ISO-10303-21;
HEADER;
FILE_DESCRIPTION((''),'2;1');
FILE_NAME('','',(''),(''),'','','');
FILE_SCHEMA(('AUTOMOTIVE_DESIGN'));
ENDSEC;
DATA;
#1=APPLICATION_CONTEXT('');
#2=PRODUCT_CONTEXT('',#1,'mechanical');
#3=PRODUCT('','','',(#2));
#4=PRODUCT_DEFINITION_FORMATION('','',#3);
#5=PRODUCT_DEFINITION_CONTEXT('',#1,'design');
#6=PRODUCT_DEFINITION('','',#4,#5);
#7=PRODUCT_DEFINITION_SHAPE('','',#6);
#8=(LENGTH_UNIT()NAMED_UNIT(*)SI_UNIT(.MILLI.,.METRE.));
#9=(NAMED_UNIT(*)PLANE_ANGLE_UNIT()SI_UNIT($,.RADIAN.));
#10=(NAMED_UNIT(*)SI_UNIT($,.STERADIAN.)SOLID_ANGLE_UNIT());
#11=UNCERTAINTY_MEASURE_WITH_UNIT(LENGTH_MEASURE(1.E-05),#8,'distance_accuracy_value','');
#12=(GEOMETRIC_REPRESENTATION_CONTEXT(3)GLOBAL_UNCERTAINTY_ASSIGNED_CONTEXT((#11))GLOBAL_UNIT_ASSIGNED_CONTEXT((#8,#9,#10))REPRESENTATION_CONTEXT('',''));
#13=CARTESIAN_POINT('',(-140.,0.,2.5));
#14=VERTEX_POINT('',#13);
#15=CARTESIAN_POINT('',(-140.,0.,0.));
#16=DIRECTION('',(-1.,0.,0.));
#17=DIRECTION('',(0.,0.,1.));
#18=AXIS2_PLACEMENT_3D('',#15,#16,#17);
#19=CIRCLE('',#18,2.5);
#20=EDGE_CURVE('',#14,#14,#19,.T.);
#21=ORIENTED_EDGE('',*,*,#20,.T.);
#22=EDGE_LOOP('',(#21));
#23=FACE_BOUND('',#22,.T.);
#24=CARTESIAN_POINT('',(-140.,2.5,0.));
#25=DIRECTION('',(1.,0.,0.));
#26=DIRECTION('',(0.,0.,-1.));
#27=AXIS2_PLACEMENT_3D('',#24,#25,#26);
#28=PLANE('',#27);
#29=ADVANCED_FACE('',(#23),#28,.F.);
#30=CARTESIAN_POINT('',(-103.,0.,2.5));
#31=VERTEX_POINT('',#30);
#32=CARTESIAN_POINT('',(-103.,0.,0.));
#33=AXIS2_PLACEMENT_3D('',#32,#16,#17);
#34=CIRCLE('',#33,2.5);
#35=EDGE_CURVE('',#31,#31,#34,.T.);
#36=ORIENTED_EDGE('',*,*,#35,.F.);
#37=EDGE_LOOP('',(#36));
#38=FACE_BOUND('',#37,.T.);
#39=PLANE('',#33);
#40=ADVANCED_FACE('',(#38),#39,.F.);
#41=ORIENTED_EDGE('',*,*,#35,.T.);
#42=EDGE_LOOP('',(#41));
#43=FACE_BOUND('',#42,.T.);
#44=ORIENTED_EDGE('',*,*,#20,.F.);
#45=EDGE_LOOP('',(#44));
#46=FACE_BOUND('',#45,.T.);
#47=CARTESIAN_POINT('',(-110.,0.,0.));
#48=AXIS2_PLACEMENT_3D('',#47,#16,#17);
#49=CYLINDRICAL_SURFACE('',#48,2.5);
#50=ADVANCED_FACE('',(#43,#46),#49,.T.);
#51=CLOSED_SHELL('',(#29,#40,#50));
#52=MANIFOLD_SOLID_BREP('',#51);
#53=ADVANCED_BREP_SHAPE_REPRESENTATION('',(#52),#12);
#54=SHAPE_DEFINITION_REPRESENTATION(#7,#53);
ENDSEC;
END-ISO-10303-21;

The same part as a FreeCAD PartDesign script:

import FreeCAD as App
import Part
import Sketcher

V = App.Vector


def add_polygon(sketch, points):
    """Adds a closed chain of lines whose ends are joined by coincident constraints."""
    first, n = sketch.GeometryCount, len(points)
    for a, b in zip(points, points[1:] + points[:1]):
        sketch.addGeometry(Part.LineSegment(App.Vector(*a, 0), App.Vector(*b, 0)), False)
    for i in range(n):
        sketch.addConstraint(Sketcher.Constraint("Coincident", first + i, 2, first + (i + 1) % n, 1))

doc = App.newDocument("Part")
body = doc.addObject("PartDesign::Body", "Body")

sketch1 = body.newObject("Sketcher::SketchObject", "Sketch")
sketch1.AttachmentSupport = (doc.getObject("XY_Plane"), [""])
sketch1.MapMode = "FlatFace"
add_polygon(sketch1, [(-140, 2.5), (-140, 0), (-103, 0), (-103, 2.5)])
sketch1.addConstraint([
    Sketcher.Constraint("Vertical", 0),
    Sketcher.Constraint("Horizontal", 1),
    Sketcher.Constraint("Vertical", 2),
    Sketcher.Constraint("Horizontal", 3),
    Sketcher.Constraint("PointOnObject", 0, 2, -1),
    Sketcher.Constraint("DistanceX", 1, 1, 1, 2, 37.0),
    Sketcher.Constraint("DistanceY", 0, 2, 0, 1, 2.5),
    Sketcher.Constraint("DistanceX", 0, 2, -1, 1, 140.0),
])
revolution = body.newObject("PartDesign::Revolution", "Revolution")
revolution.Profile = sketch1
revolution.ReferenceAxis = (sketch1, ["H_Axis"])
revolution.Angle = 360

doc.recompute()
